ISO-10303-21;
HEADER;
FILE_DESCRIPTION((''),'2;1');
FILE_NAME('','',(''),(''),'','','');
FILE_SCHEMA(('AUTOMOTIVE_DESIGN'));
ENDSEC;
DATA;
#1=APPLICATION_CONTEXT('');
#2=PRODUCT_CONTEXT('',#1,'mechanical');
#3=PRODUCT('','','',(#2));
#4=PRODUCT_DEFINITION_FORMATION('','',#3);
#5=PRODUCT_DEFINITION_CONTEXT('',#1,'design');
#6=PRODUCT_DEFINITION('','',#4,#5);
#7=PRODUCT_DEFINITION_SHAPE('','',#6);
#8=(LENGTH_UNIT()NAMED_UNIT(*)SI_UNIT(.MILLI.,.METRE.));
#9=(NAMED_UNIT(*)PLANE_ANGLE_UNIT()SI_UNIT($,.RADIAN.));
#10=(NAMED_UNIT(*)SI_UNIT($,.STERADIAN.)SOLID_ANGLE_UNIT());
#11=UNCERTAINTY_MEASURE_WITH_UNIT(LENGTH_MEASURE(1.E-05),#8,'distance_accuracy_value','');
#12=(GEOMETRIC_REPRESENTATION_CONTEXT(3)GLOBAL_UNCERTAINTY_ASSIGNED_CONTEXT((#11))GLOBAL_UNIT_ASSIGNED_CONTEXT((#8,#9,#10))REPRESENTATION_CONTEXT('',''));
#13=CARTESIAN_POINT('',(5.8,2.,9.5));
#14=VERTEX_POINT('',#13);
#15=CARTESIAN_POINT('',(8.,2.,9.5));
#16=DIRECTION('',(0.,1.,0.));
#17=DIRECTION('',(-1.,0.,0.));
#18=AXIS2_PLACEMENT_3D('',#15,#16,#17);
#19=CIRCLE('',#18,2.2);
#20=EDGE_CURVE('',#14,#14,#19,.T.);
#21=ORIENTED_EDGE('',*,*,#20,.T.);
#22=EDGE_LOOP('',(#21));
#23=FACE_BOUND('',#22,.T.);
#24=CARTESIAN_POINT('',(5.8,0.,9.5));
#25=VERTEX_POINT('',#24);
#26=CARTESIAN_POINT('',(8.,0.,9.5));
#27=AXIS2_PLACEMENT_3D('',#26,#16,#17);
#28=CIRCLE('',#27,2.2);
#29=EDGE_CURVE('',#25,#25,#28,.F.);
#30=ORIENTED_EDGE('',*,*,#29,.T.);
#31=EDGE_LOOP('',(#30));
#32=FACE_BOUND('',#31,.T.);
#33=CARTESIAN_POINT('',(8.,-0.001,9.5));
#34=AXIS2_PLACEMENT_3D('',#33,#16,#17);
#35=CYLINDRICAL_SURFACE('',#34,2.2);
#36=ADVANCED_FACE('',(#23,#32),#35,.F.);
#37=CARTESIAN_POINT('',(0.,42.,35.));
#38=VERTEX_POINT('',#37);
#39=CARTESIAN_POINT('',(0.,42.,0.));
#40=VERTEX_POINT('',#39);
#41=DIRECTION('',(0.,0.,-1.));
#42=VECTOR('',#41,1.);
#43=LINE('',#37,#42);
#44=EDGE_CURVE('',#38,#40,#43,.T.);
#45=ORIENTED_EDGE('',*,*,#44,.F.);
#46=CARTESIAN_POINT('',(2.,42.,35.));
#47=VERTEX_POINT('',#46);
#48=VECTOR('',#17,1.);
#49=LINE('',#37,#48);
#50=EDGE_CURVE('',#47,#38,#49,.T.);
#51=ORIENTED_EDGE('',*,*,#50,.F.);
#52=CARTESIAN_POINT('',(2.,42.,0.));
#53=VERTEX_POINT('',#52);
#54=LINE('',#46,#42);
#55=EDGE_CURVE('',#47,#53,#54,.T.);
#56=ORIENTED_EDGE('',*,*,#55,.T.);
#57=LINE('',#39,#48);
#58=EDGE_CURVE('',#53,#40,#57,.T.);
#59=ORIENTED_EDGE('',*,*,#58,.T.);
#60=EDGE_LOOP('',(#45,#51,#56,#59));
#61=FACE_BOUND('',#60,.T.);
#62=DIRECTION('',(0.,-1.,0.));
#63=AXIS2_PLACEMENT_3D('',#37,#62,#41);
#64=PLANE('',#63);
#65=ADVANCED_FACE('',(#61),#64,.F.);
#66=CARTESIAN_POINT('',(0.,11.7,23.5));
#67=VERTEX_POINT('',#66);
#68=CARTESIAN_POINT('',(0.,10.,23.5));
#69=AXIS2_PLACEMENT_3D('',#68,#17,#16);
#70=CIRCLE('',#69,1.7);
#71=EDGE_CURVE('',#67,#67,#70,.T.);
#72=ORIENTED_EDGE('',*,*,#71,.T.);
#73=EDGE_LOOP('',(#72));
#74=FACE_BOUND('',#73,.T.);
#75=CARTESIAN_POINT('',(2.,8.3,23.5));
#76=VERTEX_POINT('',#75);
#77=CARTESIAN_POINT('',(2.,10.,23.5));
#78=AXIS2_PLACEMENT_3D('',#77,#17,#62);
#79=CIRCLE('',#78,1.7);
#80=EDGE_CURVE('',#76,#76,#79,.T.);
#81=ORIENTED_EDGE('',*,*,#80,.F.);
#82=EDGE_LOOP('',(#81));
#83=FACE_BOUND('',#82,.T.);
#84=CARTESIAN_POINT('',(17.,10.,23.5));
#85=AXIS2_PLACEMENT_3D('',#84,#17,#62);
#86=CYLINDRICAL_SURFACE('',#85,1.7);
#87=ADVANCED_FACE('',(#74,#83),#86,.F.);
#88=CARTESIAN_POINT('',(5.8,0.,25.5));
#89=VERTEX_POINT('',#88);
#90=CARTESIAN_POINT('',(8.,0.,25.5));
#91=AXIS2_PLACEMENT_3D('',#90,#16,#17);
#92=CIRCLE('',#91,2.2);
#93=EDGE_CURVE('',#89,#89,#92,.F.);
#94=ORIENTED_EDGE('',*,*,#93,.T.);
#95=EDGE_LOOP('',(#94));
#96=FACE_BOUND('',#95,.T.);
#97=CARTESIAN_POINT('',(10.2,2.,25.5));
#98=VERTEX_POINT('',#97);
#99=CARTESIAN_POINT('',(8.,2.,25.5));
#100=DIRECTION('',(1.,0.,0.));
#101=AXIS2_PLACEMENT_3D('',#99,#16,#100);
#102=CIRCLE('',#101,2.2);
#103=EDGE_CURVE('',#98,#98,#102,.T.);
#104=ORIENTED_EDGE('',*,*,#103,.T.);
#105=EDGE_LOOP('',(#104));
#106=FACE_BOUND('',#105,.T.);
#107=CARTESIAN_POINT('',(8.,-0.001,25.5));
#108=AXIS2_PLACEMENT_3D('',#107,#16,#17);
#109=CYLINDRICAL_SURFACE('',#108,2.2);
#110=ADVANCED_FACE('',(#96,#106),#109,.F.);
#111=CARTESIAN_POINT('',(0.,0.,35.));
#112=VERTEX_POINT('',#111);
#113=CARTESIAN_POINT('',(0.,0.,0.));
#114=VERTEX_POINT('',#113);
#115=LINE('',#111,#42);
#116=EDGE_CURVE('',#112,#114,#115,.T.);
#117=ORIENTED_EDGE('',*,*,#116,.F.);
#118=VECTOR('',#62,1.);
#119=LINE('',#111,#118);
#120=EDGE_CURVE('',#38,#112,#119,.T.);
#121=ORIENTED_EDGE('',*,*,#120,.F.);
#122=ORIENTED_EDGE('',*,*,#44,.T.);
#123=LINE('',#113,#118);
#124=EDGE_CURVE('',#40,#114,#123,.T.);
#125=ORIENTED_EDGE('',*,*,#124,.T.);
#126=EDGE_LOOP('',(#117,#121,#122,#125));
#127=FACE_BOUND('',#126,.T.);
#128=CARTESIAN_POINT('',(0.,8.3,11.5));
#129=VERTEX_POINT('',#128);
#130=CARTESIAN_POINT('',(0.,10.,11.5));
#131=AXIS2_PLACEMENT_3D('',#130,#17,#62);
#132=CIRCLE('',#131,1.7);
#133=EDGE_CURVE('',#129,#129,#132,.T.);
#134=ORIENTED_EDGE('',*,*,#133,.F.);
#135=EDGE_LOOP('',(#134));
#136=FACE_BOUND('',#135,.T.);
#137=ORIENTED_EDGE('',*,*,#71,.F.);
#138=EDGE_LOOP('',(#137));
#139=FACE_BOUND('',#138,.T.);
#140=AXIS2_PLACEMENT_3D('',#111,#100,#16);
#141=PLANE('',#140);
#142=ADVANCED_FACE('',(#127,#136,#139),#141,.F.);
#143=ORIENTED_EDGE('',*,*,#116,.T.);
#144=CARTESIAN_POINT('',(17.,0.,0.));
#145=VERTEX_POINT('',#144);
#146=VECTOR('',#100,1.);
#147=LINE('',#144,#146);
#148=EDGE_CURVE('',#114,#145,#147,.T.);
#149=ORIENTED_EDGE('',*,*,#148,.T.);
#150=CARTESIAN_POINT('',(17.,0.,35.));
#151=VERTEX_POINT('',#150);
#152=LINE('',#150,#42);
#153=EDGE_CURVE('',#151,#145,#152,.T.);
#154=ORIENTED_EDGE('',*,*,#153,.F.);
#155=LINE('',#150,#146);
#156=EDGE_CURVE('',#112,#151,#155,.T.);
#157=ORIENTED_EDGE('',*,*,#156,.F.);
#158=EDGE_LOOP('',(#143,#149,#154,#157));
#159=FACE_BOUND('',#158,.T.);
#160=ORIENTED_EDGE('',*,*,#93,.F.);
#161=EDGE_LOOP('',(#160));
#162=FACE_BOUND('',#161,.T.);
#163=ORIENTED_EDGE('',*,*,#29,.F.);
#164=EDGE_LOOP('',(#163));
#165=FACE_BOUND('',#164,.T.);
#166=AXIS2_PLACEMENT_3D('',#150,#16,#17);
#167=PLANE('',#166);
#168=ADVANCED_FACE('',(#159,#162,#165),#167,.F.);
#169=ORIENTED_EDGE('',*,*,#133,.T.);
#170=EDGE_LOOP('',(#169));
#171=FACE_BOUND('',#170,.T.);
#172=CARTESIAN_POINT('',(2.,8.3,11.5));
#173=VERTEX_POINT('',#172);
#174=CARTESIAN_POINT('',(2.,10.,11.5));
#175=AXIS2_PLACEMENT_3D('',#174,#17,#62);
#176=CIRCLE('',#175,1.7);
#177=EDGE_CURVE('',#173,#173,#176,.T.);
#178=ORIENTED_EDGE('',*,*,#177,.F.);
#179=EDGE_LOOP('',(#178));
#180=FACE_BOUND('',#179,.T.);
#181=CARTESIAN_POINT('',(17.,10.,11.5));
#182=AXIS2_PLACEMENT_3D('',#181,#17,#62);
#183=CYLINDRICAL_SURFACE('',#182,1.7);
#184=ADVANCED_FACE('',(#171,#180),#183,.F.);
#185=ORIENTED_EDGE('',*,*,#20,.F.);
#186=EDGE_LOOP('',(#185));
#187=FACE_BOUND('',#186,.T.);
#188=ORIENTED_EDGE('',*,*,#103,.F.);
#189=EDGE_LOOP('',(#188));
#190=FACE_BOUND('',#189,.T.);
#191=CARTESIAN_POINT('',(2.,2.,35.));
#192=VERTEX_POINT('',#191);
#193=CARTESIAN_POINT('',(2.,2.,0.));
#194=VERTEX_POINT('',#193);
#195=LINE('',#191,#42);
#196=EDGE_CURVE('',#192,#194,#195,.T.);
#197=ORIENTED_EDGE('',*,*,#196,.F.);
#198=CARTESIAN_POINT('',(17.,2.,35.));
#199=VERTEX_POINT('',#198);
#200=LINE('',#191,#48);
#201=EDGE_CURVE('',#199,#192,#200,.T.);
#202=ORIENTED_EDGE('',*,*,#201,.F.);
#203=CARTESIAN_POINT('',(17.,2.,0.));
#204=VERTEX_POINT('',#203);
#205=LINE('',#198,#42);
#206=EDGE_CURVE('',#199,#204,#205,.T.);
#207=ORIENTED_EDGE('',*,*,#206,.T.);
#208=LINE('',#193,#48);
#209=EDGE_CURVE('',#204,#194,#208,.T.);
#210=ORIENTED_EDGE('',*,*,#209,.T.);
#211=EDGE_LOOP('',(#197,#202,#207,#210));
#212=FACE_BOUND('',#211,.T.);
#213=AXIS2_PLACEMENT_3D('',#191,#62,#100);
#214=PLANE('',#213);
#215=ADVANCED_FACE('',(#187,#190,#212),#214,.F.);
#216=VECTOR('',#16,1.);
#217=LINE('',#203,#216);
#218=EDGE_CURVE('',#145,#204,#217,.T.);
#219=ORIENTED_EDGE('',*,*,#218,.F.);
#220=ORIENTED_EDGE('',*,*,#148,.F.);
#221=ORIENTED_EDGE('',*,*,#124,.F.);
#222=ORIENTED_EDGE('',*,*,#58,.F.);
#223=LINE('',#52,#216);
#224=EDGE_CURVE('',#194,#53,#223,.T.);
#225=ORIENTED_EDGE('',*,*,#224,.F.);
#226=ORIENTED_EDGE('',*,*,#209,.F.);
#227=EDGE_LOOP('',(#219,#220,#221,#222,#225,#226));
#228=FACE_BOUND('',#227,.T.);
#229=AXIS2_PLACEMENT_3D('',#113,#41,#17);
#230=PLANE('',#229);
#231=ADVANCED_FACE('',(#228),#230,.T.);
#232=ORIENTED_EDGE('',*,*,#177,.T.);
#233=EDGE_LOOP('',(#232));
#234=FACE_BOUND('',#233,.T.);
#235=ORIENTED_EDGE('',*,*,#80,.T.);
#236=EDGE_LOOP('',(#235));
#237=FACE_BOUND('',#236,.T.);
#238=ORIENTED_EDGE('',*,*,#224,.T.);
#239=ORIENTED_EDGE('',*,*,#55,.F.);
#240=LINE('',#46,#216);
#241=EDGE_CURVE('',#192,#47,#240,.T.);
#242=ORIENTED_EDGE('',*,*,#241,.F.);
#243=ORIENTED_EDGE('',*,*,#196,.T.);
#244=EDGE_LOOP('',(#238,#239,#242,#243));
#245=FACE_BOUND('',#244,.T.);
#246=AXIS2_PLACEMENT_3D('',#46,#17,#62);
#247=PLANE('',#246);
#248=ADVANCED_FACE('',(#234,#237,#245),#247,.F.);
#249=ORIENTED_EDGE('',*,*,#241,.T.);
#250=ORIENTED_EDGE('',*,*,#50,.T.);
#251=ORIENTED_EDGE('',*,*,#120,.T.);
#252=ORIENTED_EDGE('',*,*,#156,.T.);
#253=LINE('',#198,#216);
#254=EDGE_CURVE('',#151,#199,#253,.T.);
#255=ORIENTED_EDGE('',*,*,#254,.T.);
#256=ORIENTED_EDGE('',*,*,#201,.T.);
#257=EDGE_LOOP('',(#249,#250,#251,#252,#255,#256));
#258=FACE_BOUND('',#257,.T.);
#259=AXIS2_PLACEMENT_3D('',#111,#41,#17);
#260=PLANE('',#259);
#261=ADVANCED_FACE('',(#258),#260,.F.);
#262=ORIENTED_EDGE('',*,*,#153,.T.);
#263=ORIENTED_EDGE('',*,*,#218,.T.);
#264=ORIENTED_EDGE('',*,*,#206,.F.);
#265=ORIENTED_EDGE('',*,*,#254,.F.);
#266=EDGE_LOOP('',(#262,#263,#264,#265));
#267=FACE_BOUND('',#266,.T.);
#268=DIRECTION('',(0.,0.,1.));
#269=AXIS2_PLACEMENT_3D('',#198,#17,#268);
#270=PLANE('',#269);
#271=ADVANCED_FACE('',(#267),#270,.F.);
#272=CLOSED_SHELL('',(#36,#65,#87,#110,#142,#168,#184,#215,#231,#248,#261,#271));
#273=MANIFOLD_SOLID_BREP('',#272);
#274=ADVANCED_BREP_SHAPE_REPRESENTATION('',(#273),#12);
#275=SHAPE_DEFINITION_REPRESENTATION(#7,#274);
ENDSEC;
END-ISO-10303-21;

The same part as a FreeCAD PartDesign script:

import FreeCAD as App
import Part
import Sketcher
Q = App.Units.Quantity


def add_polygon(sketch, points):
    """Adds a closed chain of lines whose ends are joined by coincident constraints."""
    first, n = sketch.GeometryCount, len(points)
    for a, b in zip(points, points[1:] + points[:1]):
        sketch.addGeometry(Part.LineSegment(App.Vector(*a, 0), App.Vector(*b, 0)), False)
    for i in range(n):
        sketch.addConstraint(Sketcher.Constraint("Coincident", first + i, 2, first + (i + 1) % n, 1))

doc = App.newDocument("Part")
body = doc.addObject("PartDesign::Body", "Body")

# Sketch on XY plane
sketch1 = doc.addObject("Sketcher::SketchObject", "Sketch")
body.addObject(sketch1)
sketch1.AttachmentSupport = (doc.XY_Plane, [""])
sketch1.MapMode = "FlatFace"
add_polygon(sketch1, [(0, 42), (0, 0), (17, 0), (17, 2), (2, 2), (2, 42)])  # lines 0-5
sketch1.addConstraint([
    Sketcher.Constraint("Vertical", 0),
    Sketcher.Constraint("Horizontal", 1),
    Sketcher.Constraint("Vertical", 2),
    Sketcher.Constraint("Horizontal", 3),
    Sketcher.Constraint("Vertical", 4),
    Sketcher.Constraint("Horizontal", 5),
    Sketcher.Constraint("Coincident", 0, 2, -1, 1),
    Sketcher.Constraint("Equal", 5, 2),
    Sketcher.Constraint("DistanceX", 1, 1, 1, 2, Q("17 mm")),
    Sketcher.Constraint("DistanceX", 3, 2, 3, 1, Q("15 mm")),
    Sketcher.Constraint("DistanceY", 0, 2, 0, 1, Q("42 mm")),
])
pad1 = doc.addObject("PartDesign::Pad", "Pad")
body.addObject(pad1)
pad1.Profile = sketch1
pad1.Length = 35

# Sketch on XZ plane
sketch2 = doc.addObject("Sketcher::SketchObject", "Sketch001")
body.addObject(sketch2)
sketch2.AttachmentSupport = (doc.XZ_Plane, [""])
sketch2.MapMode = "FlatFace"
sketch2.AttachmentOffset = App.Placement(App.Vector(0, 0, -2), App.Rotation())
sketch2.addGeometry(Part.Circle(App.Vector(8, 9.5, 0), App.Vector(0, 0, 1), 2.2), False)
sketch2.addConstraint([
    Sketcher.Constraint("Diameter", 0, Q("4.4 mm")),
    Sketcher.Constraint("DistanceX", -1, 1, 0, 3, Q("8 mm")),
    Sketcher.Constraint("DistanceY", -1, 1, 0, 3, Q("9.5 mm")),
])
pocket1 = doc.addObject("PartDesign::Pocket", "Pocket")
body.addObject(pocket1)
pocket1.Profile = sketch2
pocket1.Type = "UpToFirst"
pocket1.Reversed = True

# Sketch on XZ plane
sketch3 = doc.addObject("Sketcher::SketchObject", "Sketch002")
body.addObject(sketch3)
sketch3.AttachmentSupport = (doc.XZ_Plane, [""])
sketch3.MapMode = "FlatFace"
sketch3.AttachmentOffset = App.Placement(App.Vector(0, 0, -2), App.Rotation())
sketch3.addGeometry(Part.Circle(App.Vector(8, 25.5, 0), App.Vector(0, 0, 1), 2.2), False)
sketch3.addConstraint([
    Sketcher.Constraint("Diameter", 0, Q("4.4 mm")),
    Sketcher.Constraint("DistanceX", -1, 1, 0, 3, Q("8 mm")),
    Sketcher.Constraint("DistanceY", -1, 1, 0, 3, Q("25.5 mm")),
])
pocket2 = doc.addObject("PartDesign::Pocket", "Pocket001")
body.addObject(pocket2)
pocket2.Profile = sketch3
pocket2.Type = "UpToFirst"
pocket2.Reversed = True

# Sketch on YZ plane
sketch4 = doc.addObject("Sketcher::SketchObject", "Sketch003")
body.addObject(sketch4)
sketch4.AttachmentSupport = (doc.YZ_Plane, [""])
sketch4.MapMode = "FlatFace"
sketch4.addGeometry([
    Part.Circle(App.Vector(10, 11.5, 0), App.Vector(0, 0, 1), 1.7),
    Part.Circle(App.Vector(10, 23.5, 0), App.Vector(0, 0, 1), 1.7),
], False)
sketch4.addConstraint([
    Sketcher.Constraint("Equal", 0, 1),
    Sketcher.Constraint("Vertical", 0, 3, 1, 3),
    Sketcher.Constraint("Diameter", 0, Q("3.4 mm")),
    Sketcher.Constraint("DistanceX", -1, 1, 0, 3, Q("10 mm")),
    Sketcher.Constraint("DistanceY", 0, 3, 1, 3, Q("12 mm")),
    Sketcher.Constraint("DistanceY", -1, 1, 0, 3, Q("11.5 mm")),
])
pocket3 = doc.addObject("PartDesign::Pocket", "Pocket002")
body.addObject(pocket3)
pocket3.Profile = sketch4
pocket3.Type = "ThroughAll"
pocket3.Reversed = True

doc.recompute()
